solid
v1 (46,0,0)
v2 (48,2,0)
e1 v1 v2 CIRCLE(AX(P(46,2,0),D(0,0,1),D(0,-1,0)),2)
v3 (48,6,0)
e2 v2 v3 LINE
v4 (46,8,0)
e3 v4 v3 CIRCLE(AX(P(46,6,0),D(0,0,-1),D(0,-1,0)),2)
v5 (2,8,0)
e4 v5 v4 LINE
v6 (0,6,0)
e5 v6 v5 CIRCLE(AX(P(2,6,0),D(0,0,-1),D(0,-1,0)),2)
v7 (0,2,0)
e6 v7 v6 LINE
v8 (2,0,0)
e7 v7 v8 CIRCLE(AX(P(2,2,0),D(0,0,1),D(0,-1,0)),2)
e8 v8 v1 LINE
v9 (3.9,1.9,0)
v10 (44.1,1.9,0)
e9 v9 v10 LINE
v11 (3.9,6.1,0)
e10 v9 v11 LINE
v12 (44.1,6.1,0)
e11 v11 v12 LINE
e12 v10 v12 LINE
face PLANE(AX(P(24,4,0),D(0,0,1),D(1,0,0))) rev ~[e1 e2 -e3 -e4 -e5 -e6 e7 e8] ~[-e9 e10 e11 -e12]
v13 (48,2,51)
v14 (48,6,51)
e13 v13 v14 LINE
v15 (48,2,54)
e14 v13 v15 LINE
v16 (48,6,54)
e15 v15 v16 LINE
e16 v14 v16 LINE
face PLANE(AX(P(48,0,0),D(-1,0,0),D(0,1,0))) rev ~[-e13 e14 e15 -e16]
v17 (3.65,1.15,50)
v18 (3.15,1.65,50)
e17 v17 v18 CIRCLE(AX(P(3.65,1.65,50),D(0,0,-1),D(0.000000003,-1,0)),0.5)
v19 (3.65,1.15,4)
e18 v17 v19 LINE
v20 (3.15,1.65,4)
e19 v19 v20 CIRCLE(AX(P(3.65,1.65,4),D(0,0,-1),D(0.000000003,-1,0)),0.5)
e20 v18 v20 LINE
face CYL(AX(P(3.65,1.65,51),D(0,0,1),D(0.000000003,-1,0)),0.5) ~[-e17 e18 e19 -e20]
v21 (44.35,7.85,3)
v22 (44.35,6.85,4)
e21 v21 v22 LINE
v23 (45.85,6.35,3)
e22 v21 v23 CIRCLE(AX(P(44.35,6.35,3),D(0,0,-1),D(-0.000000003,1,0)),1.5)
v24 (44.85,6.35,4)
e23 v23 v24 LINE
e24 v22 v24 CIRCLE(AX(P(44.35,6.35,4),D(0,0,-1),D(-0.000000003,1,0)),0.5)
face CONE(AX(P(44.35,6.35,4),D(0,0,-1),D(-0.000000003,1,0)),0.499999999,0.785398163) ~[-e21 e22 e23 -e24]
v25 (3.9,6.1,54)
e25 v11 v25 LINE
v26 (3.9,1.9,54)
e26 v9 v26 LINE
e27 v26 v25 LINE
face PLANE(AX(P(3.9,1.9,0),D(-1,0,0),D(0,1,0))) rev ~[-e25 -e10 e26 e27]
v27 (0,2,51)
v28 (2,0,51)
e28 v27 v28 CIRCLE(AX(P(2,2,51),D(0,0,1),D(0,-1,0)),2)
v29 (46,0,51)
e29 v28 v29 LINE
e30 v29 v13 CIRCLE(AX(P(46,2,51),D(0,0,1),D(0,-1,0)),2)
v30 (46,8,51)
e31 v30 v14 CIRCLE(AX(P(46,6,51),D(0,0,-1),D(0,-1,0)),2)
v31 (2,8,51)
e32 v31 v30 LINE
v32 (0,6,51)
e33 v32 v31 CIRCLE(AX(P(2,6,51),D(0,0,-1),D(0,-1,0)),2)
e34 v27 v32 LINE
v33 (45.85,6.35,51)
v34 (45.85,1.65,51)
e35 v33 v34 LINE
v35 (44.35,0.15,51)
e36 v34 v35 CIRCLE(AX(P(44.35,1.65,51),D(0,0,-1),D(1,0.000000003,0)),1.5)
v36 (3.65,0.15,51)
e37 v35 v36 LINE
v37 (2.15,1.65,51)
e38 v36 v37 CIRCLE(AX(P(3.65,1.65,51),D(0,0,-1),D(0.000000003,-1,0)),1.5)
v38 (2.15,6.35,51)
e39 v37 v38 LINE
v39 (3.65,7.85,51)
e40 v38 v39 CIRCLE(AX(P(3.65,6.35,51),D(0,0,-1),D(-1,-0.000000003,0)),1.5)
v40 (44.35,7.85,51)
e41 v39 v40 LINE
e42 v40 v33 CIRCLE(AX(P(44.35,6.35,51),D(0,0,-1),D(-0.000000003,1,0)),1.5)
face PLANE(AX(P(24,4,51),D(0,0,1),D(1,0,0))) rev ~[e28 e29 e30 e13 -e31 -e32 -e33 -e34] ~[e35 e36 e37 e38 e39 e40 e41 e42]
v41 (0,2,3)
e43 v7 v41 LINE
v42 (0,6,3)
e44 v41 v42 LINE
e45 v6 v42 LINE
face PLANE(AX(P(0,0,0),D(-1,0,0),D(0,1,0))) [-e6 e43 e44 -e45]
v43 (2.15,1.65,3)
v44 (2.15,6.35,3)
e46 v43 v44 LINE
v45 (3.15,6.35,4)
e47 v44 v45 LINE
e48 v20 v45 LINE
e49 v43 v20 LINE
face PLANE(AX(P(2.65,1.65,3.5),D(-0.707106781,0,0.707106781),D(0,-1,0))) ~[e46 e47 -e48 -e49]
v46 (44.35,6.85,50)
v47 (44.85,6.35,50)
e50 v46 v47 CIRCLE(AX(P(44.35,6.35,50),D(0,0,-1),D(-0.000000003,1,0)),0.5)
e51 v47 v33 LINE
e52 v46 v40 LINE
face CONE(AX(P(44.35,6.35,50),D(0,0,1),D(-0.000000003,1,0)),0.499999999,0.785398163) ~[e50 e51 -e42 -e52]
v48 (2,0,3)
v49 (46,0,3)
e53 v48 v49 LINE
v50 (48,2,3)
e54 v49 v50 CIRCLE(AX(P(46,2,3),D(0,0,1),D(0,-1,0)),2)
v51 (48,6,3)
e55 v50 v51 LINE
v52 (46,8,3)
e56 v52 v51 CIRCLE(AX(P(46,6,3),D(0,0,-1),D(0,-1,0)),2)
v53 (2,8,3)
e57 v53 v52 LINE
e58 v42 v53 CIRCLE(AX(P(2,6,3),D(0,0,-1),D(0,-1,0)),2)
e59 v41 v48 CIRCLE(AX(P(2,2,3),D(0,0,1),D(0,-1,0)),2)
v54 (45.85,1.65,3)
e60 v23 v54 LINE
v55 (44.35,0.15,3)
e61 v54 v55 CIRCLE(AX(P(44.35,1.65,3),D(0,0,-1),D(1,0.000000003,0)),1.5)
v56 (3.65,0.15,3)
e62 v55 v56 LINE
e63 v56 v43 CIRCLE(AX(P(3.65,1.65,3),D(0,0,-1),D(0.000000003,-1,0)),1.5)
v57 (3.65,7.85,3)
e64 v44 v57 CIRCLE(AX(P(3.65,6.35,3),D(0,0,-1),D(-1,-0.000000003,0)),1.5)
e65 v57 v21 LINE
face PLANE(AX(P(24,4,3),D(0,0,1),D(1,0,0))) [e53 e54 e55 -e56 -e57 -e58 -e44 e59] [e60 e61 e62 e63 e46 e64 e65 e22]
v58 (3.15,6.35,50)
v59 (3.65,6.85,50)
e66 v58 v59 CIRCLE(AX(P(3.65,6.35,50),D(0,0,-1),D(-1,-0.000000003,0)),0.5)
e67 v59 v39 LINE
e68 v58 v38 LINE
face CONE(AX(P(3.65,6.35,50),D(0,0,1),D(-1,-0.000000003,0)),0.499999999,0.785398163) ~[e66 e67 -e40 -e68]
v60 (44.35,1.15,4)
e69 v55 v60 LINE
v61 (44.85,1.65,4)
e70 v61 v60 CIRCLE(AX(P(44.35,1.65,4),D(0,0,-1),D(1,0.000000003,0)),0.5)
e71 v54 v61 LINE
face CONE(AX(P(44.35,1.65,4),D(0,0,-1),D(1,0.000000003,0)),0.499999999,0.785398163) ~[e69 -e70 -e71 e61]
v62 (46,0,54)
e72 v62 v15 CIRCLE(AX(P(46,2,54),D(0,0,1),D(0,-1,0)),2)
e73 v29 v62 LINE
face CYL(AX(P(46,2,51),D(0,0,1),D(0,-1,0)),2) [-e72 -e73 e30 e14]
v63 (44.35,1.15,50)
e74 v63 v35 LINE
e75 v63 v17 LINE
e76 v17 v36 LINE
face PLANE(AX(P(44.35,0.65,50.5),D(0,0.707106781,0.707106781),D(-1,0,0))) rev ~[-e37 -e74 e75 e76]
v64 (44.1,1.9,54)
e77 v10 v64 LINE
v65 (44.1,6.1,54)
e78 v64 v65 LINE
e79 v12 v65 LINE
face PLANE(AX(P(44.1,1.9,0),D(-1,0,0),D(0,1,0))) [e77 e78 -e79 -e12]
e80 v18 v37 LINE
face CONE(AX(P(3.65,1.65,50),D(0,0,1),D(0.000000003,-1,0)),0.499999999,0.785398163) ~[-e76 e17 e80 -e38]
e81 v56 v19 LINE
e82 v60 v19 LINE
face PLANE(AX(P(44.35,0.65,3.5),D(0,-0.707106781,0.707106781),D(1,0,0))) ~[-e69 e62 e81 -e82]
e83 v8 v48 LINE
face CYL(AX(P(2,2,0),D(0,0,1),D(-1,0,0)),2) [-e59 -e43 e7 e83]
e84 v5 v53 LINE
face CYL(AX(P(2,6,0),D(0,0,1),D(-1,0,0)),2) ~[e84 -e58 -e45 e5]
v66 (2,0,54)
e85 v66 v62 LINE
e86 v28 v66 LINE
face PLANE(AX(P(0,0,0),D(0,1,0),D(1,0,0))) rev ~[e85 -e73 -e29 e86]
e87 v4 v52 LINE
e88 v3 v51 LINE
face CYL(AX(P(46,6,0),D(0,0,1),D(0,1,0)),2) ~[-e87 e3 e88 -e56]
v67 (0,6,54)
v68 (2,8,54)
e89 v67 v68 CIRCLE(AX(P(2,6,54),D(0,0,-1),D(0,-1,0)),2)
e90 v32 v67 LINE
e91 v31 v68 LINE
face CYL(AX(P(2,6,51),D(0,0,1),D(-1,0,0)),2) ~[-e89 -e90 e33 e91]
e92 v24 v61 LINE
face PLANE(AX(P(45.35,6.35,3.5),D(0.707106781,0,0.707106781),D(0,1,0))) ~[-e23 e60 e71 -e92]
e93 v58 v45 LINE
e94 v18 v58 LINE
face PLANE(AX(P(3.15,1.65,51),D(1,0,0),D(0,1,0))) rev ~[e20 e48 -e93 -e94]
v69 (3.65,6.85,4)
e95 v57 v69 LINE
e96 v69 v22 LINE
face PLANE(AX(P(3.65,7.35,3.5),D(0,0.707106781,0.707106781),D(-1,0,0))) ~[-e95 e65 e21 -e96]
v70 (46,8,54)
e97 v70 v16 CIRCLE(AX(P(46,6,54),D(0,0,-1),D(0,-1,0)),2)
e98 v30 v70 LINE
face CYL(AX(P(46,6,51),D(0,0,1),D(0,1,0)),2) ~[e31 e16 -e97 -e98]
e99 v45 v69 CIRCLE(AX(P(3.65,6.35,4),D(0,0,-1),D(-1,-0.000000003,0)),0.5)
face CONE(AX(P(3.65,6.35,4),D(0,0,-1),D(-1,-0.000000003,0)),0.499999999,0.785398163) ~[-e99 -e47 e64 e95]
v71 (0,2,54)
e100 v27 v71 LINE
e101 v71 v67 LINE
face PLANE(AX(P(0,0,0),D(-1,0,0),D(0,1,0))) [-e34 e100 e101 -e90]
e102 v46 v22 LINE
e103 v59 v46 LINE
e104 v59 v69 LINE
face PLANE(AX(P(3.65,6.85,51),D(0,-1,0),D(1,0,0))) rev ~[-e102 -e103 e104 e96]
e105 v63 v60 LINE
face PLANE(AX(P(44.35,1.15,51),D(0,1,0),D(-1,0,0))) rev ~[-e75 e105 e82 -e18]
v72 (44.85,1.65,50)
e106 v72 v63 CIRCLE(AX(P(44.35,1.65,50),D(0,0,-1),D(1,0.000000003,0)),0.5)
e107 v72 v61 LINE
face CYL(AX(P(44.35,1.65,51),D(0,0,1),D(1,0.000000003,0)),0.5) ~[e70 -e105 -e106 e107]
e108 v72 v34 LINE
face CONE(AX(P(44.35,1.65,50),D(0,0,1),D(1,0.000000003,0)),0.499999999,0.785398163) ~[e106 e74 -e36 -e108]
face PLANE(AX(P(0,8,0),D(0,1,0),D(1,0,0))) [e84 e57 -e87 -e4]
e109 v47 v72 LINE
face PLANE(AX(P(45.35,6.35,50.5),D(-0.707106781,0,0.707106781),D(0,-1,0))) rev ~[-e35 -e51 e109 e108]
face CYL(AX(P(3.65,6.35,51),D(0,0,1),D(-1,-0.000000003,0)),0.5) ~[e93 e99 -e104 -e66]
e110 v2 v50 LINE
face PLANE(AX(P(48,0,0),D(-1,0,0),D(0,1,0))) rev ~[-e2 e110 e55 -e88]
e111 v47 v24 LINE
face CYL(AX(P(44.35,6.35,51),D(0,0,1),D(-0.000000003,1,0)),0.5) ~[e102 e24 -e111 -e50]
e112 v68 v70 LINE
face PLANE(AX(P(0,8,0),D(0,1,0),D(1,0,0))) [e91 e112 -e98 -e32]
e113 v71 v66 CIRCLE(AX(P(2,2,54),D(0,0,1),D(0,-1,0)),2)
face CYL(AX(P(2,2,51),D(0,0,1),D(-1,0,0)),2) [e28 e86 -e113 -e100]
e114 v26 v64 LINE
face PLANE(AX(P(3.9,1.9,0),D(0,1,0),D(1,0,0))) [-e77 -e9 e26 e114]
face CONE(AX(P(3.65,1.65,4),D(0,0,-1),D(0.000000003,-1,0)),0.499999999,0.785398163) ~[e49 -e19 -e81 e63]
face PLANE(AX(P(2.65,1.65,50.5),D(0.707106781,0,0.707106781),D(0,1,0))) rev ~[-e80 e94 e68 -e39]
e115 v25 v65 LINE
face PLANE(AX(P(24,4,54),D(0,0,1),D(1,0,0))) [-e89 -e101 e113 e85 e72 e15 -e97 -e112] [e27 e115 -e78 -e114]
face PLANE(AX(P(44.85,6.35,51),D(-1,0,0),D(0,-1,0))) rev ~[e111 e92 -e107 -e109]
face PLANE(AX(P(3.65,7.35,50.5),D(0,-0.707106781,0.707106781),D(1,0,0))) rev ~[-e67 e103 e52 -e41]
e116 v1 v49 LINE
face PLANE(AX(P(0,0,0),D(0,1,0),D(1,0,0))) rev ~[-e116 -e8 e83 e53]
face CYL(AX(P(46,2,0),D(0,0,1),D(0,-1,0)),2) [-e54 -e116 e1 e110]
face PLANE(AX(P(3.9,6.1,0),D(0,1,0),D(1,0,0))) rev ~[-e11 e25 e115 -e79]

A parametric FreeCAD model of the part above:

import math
import FreeCAD as App
import Part
import Sketcher
from FreeCAD import Vector
Q = App.Units.Quantity


def edges_at(feature, points):
    """Names of the edges that pass closest to the given points."""
    edges = feature.Shape.Edges
    near = lambda p: min(range(len(edges)), key=lambda i: edges[i].distToShape(Part.Vertex(*p))[0])
    return sorted({f"Edge{near(p) + 1}" for p in points})


def add_polygon(sketch, points):
    """Adds a closed chain of lines whose ends are joined by coincident constraints."""
    first, n = sketch.GeometryCount, len(points)
    for a, b in zip(points, points[1:] + points[:1]):
        sketch.addGeometry(Part.LineSegment(App.Vector(*a, 0), App.Vector(*b, 0)), False)
    for i in range(n):
        sketch.addConstraint(Sketcher.Constraint("Coincident", first + i, 2, first + (i + 1) % n, 1))

doc = App.newDocument("Part")
body = doc.addObject("PartDesign::Body", "Body")

# Sketch on XY plane
sketch1 = body.newObject("Sketcher::SketchObject", "Sketch")
sketch1.AttachmentSupport = (doc.getObject("XY_Plane"), [""])
sketch1.MapMode = "FlatFace"
add_polygon(sketch1, [(0, 8), (0, 0), (48, 0), (48, 8)])  # lines 0-3
add_polygon(sketch1, [(44.1, 1.9), (3.9, 1.9), (3.9, 6.1), (44.1, 6.1)])  # lines 4-7
sketch1.addConstraint(Sketcher.Constraint("Vertical", 0))
sketch1.addConstraint(Sketcher.Constraint("Horizontal", 1))
sketch1.addConstraint(Sketcher.Constraint("Vertical", 2))
sketch1.addConstraint(Sketcher.Constraint("Horizontal", 3))
sketch1.addConstraint(Sketcher.Constraint("Horizontal", 4))
sketch1.addConstraint(Sketcher.Constraint("Vertical", 5))
sketch1.addConstraint(Sketcher.Constraint("Horizontal", 6))
sketch1.addConstraint(Sketcher.Constraint("Vertical", 7))
sketch1.addConstraint(Sketcher.Constraint("Coincident", 0, 2, -1, 1))
sketch1.addConstraint(Sketcher.Constraint("DistanceX", 1, 1, 1, 2, Q("48 mm")))
sketch1.addConstraint(Sketcher.Constraint("DistanceY", 0, 2, 0, 1, Q("8 mm")))
sketch1.addConstraint(Sketcher.Constraint("DistanceX", 4, 2, 4, 1, Q("40.2 mm")))
sketch1.addConstraint(Sketcher.Constraint("DistanceY", 5, 1, 5, 2, Q("4.2 mm")))
sketch1.addConstraint(Sketcher.Constraint("DistanceX", -1, 1, 4, 2, Q("3.9 mm")))
sketch1.addConstraint(Sketcher.Constraint("DistanceY", -1, 1, 4, 2, Q("1.9 mm")))
pad1 = body.newObject("PartDesign::Pad", "Pad")
pad1.Profile = sketch1
pad1.Length = 54

# Sketch on XY plane
sketch2 = body.newObject("Sketcher::SketchObject", "Sketch001")
sketch2.AttachmentSupport = (doc.getObject("XY_Plane"), [""])
sketch2.MapMode = "FlatFace"
sketch2.AttachmentOffset = App.Placement(Vector(0, 0, 51), App.Rotation())
add_polygon(sketch2, [(-8.27, 16.27), (-8.27, -8.27), (56.27, -8.27), (56.27, 16.27)])  # lines 0-3
sketch2.addGeometry(Part.ArcOfCircle(Part.Circle(Vector(3.65, 6.35, 0), Vector(0, 0, 1), 0.5), math.radians(90), math.radians(180)), False)  # 4
sketch2.addGeometry(Part.LineSegment(Vector(3.65, 6.85, 0), Vector(44.35, 6.85, 0)), False)  # 5
sketch2.addGeometry(Part.ArcOfCircle(Part.Circle(Vector(44.35, 6.35, 0), Vector(0, 0, 1), 0.5), math.radians(0), math.radians(90)), False)  # 6
sketch2.addGeometry(Part.LineSegment(Vector(44.85, 6.35, 0), Vector(44.85, 1.65, 0)), False)  # 7
sketch2.addGeometry(Part.ArcOfCircle(Part.Circle(Vector(44.35, 1.65, 0), Vector(0, 0, 1), 0.5), math.radians(-90), math.radians(0)), False)  # 8
sketch2.addGeometry(Part.LineSegment(Vector(44.35, 1.15, 0), Vector(3.65, 1.15, 0)), False)  # 9
sketch2.addGeometry(Part.ArcOfCircle(Part.Circle(Vector(3.65, 1.65, 0), Vector(0, 0, 1), 0.5), math.radians(180), math.radians(270)), False)  # 10
sketch2.addGeometry(Part.LineSegment(Vector(3.15, 1.65, 0), Vector(3.15, 6.35, 0)), False)  # 11
sketch2.addConstraint(Sketcher.Constraint("Tangent", 4, 1, 5, 1))
sketch2.addConstraint(Sketcher.Constraint("Tangent", 5, 2, 6, 2))
sketch2.addConstraint(Sketcher.Constraint("Tangent", 6, 1, 7, 1))
sketch2.addConstraint(Sketcher.Constraint("Tangent", 7, 2, 8, 2))
sketch2.addConstraint(Sketcher.Constraint("Tangent", 8, 1, 9, 1))
sketch2.addConstraint(Sketcher.Constraint("Tangent", 9, 2, 10, 2))
sketch2.addConstraint(Sketcher.Constraint("Tangent", 10, 1, 11, 1))
sketch2.addConstraint(Sketcher.Constraint("Tangent", 11, 2, 4, 2))
sketch2.addConstraint(Sketcher.Constraint("Vertical", 0))
sketch2.addConstraint(Sketcher.Constraint("Horizontal", 1))
sketch2.addConstraint(Sketcher.Constraint("Vertical", 2))
sketch2.addConstraint(Sketcher.Constraint("Horizontal", 3))
sketch2.addConstraint(Sketcher.Constraint("Horizontal", 5))
sketch2.addConstraint(Sketcher.Constraint("Vertical", 7))
sketch2.addConstraint(Sketcher.Constraint("Horizontal", 9))
sketch2.addConstraint(Sketcher.Constraint("Vertical", 11))
sketch2.addConstraint(Sketcher.Constraint("Equal", 4, 6))
sketch2.addConstraint(Sketcher.Constraint("Equal", 6, 8))
sketch2.addConstraint(Sketcher.Constraint("Equal", 8, 10))
sketch2.addConstraint(Sketcher.Constraint("Radius", 4, Q("0.5 mm")))
sketch2.addConstraint(Sketcher.Constraint("DistanceX", 5, 1, 5, 2, Q("40.7 mm")))
sketch2.addConstraint(Sketcher.Constraint("DistanceY", 7, 2, 7, 1, Q("4.7 mm")))
sketch2.addConstraint(Sketcher.Constraint("DistanceX", 1, 1, 1, 2, Q("64.538 mm")))
sketch2.addConstraint(Sketcher.Constraint("DistanceY", 0, 2, 0, 1, Q("24.538 mm")))
sketch2.addConstraint(Sketcher.Constraint("DistanceX", -1, 1, 4, 3, Q("3.65 mm")))
sketch2.addConstraint(Sketcher.Constraint("DistanceY", -1, 1, 4, 3, Q("6.35 mm")))
sketch2.addConstraint(Sketcher.Constraint("DistanceX", 0, 2, -1, 1, Q("8.269 mm")))
sketch2.addConstraint(Sketcher.Constraint("DistanceY", 0, 2, -1, 1, Q("8.269 mm")))
pocket1 = body.newObject("PartDesign::Pocket", "Pocket")
pocket1.Profile = sketch2
pocket1.Length = 48
doc.recompute()

fillet = body.newObject("PartDesign::Fillet", "Fillet")
fillet.Base = (pocket1, edges_at(pocket1, [
    (48, 0, 1.5),
    (0, 0, 1.5),
    (0, 8, 1.5),
    (48, 8, 1.5),
    (48, 0, 52.5),
    (0, 0, 52.5),
    (0, 8, 52.5),
    (48, 8, 52.5),
]))
fillet.Radius = 2
doc.recompute()

chamfer = body.newObject("PartDesign::Chamfer", "Chamfer")
chamfer.Base = (fillet, edges_at(fillet, [
    (3.15, 4, 3),
    (3.296, 1.296, 3),
    (24, 1.15, 3),
    (44.704, 1.296, 3),
    (44.85, 4, 3),
    (44.704, 6.704, 3),
    (24, 6.85, 3),
    (3.296, 6.704, 3),
    (3.296, 1.296, 51),
    (3.15, 4, 51),
    (3.296, 6.704, 51),
    (24, 6.85, 51),
    (44.704, 6.704, 51),
    (44.85, 4, 51),
    (44.704, 1.296, 51),
    (24, 1.15, 51),
]))
chamfer.Size = 1

doc.recompute()
